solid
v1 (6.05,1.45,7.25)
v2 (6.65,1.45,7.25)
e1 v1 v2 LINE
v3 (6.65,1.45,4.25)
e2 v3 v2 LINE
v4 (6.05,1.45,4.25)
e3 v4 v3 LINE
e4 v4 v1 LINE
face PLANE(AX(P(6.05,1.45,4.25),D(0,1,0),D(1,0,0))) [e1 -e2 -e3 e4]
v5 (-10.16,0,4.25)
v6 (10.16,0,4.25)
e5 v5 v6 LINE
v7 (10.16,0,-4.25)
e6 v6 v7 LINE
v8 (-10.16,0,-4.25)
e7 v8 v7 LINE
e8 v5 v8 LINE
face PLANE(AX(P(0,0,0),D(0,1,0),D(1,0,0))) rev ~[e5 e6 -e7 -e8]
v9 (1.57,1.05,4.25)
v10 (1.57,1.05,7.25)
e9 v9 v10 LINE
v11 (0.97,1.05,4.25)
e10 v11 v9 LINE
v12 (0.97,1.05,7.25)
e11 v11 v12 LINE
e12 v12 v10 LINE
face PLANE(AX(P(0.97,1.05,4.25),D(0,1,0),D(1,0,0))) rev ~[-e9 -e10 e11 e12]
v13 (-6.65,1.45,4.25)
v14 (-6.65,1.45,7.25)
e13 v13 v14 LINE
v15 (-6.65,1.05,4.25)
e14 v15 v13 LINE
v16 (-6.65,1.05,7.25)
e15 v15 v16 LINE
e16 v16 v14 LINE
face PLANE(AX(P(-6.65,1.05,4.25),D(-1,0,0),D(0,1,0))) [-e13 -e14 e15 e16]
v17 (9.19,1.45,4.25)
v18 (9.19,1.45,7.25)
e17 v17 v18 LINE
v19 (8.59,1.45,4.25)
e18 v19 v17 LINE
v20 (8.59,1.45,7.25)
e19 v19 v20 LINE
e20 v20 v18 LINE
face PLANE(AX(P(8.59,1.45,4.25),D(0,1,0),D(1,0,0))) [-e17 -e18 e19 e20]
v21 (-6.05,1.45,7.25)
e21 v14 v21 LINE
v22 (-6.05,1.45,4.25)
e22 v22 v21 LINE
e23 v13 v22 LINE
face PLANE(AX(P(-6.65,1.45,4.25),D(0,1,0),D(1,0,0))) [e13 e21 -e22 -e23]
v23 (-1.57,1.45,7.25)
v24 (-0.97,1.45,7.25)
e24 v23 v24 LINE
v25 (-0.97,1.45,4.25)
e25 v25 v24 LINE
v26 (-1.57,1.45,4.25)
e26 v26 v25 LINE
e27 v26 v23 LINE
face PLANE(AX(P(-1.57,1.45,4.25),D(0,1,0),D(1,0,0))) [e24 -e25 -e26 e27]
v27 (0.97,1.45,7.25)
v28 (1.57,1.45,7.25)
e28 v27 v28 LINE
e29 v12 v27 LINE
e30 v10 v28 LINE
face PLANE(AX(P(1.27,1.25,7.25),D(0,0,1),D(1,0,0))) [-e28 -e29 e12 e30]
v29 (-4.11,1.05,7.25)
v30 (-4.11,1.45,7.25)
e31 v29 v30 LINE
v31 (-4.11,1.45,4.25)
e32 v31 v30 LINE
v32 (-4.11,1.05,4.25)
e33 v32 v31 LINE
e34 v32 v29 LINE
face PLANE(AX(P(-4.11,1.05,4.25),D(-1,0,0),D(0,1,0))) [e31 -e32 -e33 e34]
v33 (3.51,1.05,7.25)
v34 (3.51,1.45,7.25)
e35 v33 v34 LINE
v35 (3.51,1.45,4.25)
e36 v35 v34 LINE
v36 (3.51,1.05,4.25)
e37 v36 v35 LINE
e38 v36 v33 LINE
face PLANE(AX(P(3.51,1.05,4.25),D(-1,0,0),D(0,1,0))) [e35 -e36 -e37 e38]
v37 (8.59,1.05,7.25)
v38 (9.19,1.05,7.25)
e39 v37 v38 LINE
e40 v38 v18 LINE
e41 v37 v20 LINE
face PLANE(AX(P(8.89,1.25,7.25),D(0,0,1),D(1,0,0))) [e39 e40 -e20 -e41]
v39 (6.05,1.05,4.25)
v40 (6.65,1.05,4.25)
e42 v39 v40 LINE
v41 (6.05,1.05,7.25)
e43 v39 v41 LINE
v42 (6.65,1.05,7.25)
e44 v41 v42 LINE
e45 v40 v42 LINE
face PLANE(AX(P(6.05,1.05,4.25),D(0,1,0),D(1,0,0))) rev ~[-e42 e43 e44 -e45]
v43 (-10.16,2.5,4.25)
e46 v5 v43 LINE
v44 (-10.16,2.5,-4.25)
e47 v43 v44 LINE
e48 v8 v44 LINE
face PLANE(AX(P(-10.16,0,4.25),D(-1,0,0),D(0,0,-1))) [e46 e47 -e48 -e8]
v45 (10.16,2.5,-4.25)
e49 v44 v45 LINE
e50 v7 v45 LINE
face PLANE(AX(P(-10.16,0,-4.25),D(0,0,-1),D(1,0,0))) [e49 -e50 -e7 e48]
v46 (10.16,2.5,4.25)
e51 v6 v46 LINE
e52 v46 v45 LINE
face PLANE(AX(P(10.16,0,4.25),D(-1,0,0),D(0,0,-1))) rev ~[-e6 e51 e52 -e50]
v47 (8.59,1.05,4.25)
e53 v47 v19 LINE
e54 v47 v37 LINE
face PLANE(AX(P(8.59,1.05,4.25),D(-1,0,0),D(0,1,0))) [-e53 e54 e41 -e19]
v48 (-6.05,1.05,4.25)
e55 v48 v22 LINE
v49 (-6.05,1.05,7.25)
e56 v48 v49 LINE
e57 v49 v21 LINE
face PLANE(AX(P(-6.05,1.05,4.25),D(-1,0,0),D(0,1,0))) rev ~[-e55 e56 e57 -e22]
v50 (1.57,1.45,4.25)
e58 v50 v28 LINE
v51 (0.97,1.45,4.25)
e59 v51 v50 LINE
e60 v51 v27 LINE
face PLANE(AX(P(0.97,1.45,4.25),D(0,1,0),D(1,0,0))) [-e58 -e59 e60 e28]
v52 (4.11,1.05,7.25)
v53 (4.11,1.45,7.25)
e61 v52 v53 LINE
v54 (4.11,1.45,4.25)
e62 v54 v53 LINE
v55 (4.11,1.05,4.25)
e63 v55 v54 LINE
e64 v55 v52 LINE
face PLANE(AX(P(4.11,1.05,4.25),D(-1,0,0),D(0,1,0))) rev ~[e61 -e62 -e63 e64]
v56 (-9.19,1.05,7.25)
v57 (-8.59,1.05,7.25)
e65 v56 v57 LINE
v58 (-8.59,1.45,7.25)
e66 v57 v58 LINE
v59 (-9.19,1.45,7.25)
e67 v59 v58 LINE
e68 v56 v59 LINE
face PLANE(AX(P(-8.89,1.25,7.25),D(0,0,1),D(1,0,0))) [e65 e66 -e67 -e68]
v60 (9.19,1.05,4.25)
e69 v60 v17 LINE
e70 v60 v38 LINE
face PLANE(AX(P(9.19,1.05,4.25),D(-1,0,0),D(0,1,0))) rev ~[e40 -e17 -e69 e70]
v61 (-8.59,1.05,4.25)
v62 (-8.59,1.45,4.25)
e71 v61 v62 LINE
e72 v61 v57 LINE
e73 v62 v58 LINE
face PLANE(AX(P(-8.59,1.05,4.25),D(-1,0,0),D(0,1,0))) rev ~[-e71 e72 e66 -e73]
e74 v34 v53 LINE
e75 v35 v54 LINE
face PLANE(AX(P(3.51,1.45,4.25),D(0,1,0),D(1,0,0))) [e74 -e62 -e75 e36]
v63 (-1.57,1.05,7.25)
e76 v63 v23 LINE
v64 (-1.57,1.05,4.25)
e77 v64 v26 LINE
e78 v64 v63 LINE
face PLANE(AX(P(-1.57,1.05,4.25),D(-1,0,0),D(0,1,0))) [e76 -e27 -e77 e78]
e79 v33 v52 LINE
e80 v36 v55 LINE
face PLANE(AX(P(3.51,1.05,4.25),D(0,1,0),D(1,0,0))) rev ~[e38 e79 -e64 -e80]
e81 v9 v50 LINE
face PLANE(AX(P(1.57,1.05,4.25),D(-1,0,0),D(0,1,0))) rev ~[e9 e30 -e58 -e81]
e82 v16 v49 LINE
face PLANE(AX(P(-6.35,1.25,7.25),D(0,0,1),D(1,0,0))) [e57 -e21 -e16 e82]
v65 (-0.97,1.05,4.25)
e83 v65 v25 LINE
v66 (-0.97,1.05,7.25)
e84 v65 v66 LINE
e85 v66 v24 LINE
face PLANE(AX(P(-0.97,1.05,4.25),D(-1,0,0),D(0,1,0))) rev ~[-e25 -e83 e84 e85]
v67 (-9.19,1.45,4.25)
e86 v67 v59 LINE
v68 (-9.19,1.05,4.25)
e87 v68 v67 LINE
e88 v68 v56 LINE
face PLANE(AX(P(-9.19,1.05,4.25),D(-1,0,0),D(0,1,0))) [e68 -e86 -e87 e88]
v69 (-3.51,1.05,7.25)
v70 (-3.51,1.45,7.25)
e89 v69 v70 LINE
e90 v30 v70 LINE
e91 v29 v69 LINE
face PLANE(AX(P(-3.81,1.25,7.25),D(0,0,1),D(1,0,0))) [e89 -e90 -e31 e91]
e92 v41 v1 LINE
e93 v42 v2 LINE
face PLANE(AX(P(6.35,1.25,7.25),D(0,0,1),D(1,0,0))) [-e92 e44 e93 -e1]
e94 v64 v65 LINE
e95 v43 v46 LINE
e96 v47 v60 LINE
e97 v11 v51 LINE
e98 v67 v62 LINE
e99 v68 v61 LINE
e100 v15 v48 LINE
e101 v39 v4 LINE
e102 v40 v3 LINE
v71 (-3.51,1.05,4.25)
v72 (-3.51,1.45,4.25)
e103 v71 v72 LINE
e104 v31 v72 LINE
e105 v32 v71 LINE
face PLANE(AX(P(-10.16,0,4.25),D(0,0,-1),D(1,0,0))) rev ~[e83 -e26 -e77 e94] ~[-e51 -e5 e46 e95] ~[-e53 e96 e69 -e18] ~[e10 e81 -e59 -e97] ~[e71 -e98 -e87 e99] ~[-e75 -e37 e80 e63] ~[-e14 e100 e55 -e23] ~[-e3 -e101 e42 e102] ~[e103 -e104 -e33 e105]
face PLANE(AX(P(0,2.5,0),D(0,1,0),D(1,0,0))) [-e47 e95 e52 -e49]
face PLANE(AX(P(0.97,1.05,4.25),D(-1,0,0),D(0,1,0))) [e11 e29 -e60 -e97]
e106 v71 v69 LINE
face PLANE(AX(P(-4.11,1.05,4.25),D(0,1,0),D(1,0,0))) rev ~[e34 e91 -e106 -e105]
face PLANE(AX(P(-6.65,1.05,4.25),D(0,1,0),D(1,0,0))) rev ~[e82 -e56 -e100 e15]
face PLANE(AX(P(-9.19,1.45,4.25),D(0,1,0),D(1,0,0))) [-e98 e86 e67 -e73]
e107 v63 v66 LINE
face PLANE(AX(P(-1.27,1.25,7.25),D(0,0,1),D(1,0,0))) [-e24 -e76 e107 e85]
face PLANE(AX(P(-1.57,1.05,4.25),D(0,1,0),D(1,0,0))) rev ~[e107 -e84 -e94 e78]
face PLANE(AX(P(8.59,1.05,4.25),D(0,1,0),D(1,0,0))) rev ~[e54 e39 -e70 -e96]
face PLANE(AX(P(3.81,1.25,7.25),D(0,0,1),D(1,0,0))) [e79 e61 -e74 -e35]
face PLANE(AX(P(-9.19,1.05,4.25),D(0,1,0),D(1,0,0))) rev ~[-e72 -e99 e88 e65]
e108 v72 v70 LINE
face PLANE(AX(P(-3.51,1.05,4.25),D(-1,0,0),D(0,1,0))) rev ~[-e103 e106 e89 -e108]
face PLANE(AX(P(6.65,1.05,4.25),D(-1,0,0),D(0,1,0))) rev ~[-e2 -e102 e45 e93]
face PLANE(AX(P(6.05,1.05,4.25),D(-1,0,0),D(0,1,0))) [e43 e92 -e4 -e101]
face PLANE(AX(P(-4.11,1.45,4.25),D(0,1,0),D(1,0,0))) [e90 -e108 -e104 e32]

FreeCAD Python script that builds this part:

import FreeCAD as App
import Part
import Sketcher

V = App.Vector

doc = App.newDocument("Part")
body = doc.addObject("PartDesign::Body", "Body")

# Sketch on XZ plane
sketch1 = body.newObject("Sketcher::SketchObject", "Sketch")
sketch1.AttachmentSupport = (doc.getObject("XZ_Plane"), [""])
sketch1.MapMode = "FlatFace"
sketch1.addGeometry([
    Part.LineSegment(V(-10, -4, 0), V(-10, 4, 0)),
    Part.LineSegment(V(-10, 4, 0), V(10, 4, 0)),
    Part.LineSegment(V(10, 4, 0), V(10, -4, 0)),
    Part.LineSegment(V(10, -4, 0), V(-10, -4, 0)),
], False)
sketch1.addConstraint([
    Sketcher.Constraint("Coincident", 0, 2, 1, 1),
    Sketcher.Constraint("Coincident", 1, 2, 2, 1),
    Sketcher.Constraint("Coincident", 2, 2, 3, 1),
    Sketcher.Constraint("Coincident", 3, 2, 0, 1),
    Sketcher.Constraint("Vertical", 0),
    Sketcher.Constraint("Horizontal", 1),
    Sketcher.Constraint("Vertical", 2),
    Sketcher.Constraint("Horizontal", 3),
    Sketcher.Constraint("Symmetric", 0, 2, 2, 2, -1, 1),
    Sketcher.Constraint("DistanceY", 0, 1, 0, 2, 8.5),
    Sketcher.Constraint("DistanceX", 1, 1, 1, 2, 20.32),
])
pad1 = body.newObject("PartDesign::Pad", "Pad")
pad1.Profile = sketch1
pad1.Length = 2.5
pad1.Reversed = True

# Sketch on XY plane
sketch2 = body.newObject("Sketcher::SketchObject", "Sketch001")
sketch2.AttachmentSupport = (doc.getObject("XY_Plane"), [""])
sketch2.MapMode = "FlatFace"
sketch2.AttachmentOffset = App.Placement(V(0, 0, 4.25), App.Rotation())
sketch2.addGeometry([
    Part.LineSegment(V(-6.65, 1.45, 0), V(-6.65, 1.05, 0)),  # 0
    Part.LineSegment(V(-6.65, 1.05, 0), V(-6.05, 1.05, 0)),  # 1
    Part.LineSegment(V(-6.05, 1.05, 0), V(-6.05, 1.45, 0)),  # 2
    Part.LineSegment(V(-6.05, 1.45, 0), V(-6.65, 1.45, 0)),  # 3
    Part.LineSegment(V(-9.19, 1.45, 0), V(-9.19, 1.05, 0)),  # 4
    Part.LineSegment(V(-9.19, 1.05, 0), V(-8.59, 1.05, 0)),  # 5
    Part.LineSegment(V(-8.59, 1.05, 0), V(-8.59, 1.45, 0)),  # 6
    Part.LineSegment(V(-8.59, 1.45, 0), V(-9.19, 1.45, 0)),  # 7
    Part.LineSegment(V(-4.11, 1.45, 0), V(-4.11, 1.05, 0)),  # 8
    Part.LineSegment(V(-4.11, 1.05, 0), V(-3.51, 1.05, 0)),  # 9
    Part.LineSegment(V(-3.51, 1.05, 0), V(-3.51, 1.45, 0)),  # 10
    Part.LineSegment(V(-3.51, 1.45, 0), V(-4.11, 1.45, 0)),  # 11
    Part.LineSegment(V(-1.57, 1.45, 0), V(-1.57, 1.05, 0)),  # 12
    Part.LineSegment(V(-1.57, 1.05, 0), V(-0.97, 1.05, 0)),  # 13
    Part.LineSegment(V(-0.97, 1.05, 0), V(-0.97, 1.45, 0)),  # 14
    Part.LineSegment(V(-0.97, 1.45, 0), V(-1.57, 1.45, 0)),  # 15
    Part.LineSegment(V(0.97, 1.45, 0), V(0.97, 1.05, 0)),  # 16
    Part.LineSegment(V(0.97, 1.05, 0), V(1.57, 1.05, 0)),  # 17
    Part.LineSegment(V(1.57, 1.05, 0), V(1.57, 1.45, 0)),  # 18
    Part.LineSegment(V(1.57, 1.45, 0), V(0.97, 1.45, 0)),  # 19
    Part.LineSegment(V(3.51, 1.45, 0), V(3.51, 1.05, 0)),  # 20
    Part.LineSegment(V(3.51, 1.05, 0), V(4.11, 1.05, 0)),  # 21
    Part.LineSegment(V(4.11, 1.05, 0), V(4.11, 1.45, 0)),  # 22
    Part.LineSegment(V(4.11, 1.45, 0), V(3.51, 1.45, 0)),  # 23
    Part.LineSegment(V(6.05, 1.45, 0), V(6.05, 1.05, 0)),  # 24
    Part.LineSegment(V(6.05, 1.05, 0), V(6.65, 1.05, 0)),  # 25
    Part.LineSegment(V(6.65, 1.05, 0), V(6.65, 1.45, 0)),  # 26
    Part.LineSegment(V(6.65, 1.45, 0), V(6.05, 1.45, 0)),  # 27
    Part.LineSegment(V(8.59, 1.45, 0), V(8.59, 1.05, 0)),  # 28
    Part.LineSegment(V(8.59, 1.05, 0), V(9.19, 1.05, 0)),  # 29
    Part.LineSegment(V(9.19, 1.05, 0), V(9.19, 1.45, 0)),  # 30
    Part.LineSegment(V(9.19, 1.45, 0), V(8.59, 1.45, 0)),  # 31
], False)
sketch2.addConstraint([
    Sketcher.Constraint("Coincident", 0, 2, 1, 1),
    Sketcher.Constraint("Coincident", 1, 2, 2, 1),
    Sketcher.Constraint("Coincident", 2, 2, 3, 1),
    Sketcher.Constraint("Coincident", 3, 2, 0, 1),
    Sketcher.Constraint("Coincident", 4, 2, 5, 1),
    Sketcher.Constraint("Coincident", 5, 2, 6, 1),
    Sketcher.Constraint("Coincident", 6, 2, 7, 1),
    Sketcher.Constraint("Coincident", 7, 2, 4, 1),
    Sketcher.Constraint("Coincident", 8, 2, 9, 1),
    Sketcher.Constraint("Coincident", 9, 2, 10, 1),
    Sketcher.Constraint("Coincident", 10, 2, 11, 1),
    Sketcher.Constraint("Coincident", 11, 2, 8, 1),
    Sketcher.Constraint("Coincident", 12, 2, 13, 1),
    Sketcher.Constraint("Coincident", 13, 2, 14, 1),
    Sketcher.Constraint("Coincident", 14, 2, 15, 1),
    Sketcher.Constraint("Coincident", 15, 2, 12, 1),
    Sketcher.Constraint("Coincident", 16, 2, 17, 1),
    Sketcher.Constraint("Coincident", 17, 2, 18, 1),
    Sketcher.Constraint("Coincident", 18, 2, 19, 1),
    Sketcher.Constraint("Coincident", 19, 2, 16, 1),
    Sketcher.Constraint("Coincident", 20, 2, 21, 1),
    Sketcher.Constraint("Coincident", 21, 2, 22, 1),
    Sketcher.Constraint("Coincident", 22, 2, 23, 1),
    Sketcher.Constraint("Coincident", 23, 2, 20, 1),
    Sketcher.Constraint("Coincident", 24, 2, 25, 1),
    Sketcher.Constraint("Coincident", 25, 2, 26, 1),
    Sketcher.Constraint("Coincident", 26, 2, 27, 1),
    Sketcher.Constraint("Coincident", 27, 2, 24, 1),
    Sketcher.Constraint("Coincident", 28, 2, 29, 1),
    Sketcher.Constraint("Coincident", 29, 2, 30, 1),
    Sketcher.Constraint("Coincident", 30, 2, 31, 1),
    Sketcher.Constraint("Coincident", 31, 2, 28, 1),
    Sketcher.Constraint("Vertical", 0),
    Sketcher.Constraint("Horizontal", 1),
    Sketcher.Constraint("Vertical", 2),
    Sketcher.Constraint("Horizontal", 3),
    Sketcher.Constraint("Vertical", 4),
    Sketcher.Constraint("Horizontal", 5),
    Sketcher.Constraint("Vertical", 6),
    Sketcher.Constraint("Horizontal", 7),
    Sketcher.Constraint("Vertical", 8),
    Sketcher.Constraint("Horizontal", 9),
    Sketcher.Constraint("Vertical", 10),
    Sketcher.Constraint("Horizontal", 11),
    Sketcher.Constraint("Vertical", 12),
    Sketcher.Constraint("Horizontal", 13),
    Sketcher.Constraint("Vertical", 14),
    Sketcher.Constraint("Horizontal", 15),
    Sketcher.Constraint("Vertical", 16),
    Sketcher.Constraint("Horizontal", 17),
    Sketcher.Constraint("Vertical", 18),
    Sketcher.Constraint("Horizontal", 19),
    Sketcher.Constraint("Vertical", 20),
    Sketcher.Constraint("Horizontal", 21),
    Sketcher.Constraint("Vertical", 22),
    Sketcher.Constraint("Horizontal", 23),
    Sketcher.Constraint("Vertical", 24),
    Sketcher.Constraint("Horizontal", 25),
    Sketcher.Constraint("Vertical", 26),
    Sketcher.Constraint("Horizontal", 27),
    Sketcher.Constraint("Vertical", 28),
    Sketcher.Constraint("Horizontal", 29),
    Sketcher.Constraint("Vertical", 30),
    Sketcher.Constraint("Horizontal", 31),
    Sketcher.Constraint("Symmetric", 13, 2, 16, 2, -2),
    Sketcher.Constraint("Symmetric", 15, 2, 18, 2, -2),
    Sketcher.Constraint("Symmetric", 9, 2, 20, 2, -2),
    Sketcher.Constraint("Symmetric", 11, 2, 22, 2, -2),
    Sketcher.Constraint("Symmetric", 1, 2, 24, 2, -2),
    Sketcher.Constraint("Symmetric", 3, 2, 26, 2, -2),
    Sketcher.Constraint("Symmetric", 5, 2, 28, 2, -2),
    Sketcher.Constraint("Symmetric", 7, 2, 30, 2, -2),
    Sketcher.Constraint("Horizontal", 1, 2, 4, 2),
    Sketcher.Constraint("Horizontal", 3, 2, 6, 2),
    Sketcher.Constraint("Horizontal", 5, 2, 8, 2),
    Sketcher.Constraint("Horizontal", 7, 2, 10, 2),
    Sketcher.Constraint("Horizontal", 9, 2, 12, 2),
    Sketcher.Constraint("Horizontal", 11, 2, 14, 2),
    Sketcher.Constraint("Equal", 3, 5),
    Sketcher.Constraint("Equal", 7, 9),
    Sketcher.Constraint("Equal", 11, 13),
    Sketcher.Constraint("DistanceX", 1, 1, 1, 2, 0.6),
    Sketcher.Constraint("DistanceY", 0, 2, 0, 1, 0.4),
    Sketcher.Constraint("DistanceX", 0, 2, -1, 1, 6.65),
    Sketcher.Constraint("DistanceY", -1, 1, 0, 2, 1.05),
    Sketcher.Constraint("DistanceX", 4, 2, -1, 1, 9.19),
    Sketcher.Constraint("DistanceX", 8, 2, -1, 1, 4.11),
    Sketcher.Constraint("DistanceX", 12, 2, -1, 1, 1.57),
])
pad2 = body.newObject("PartDesign::Pad", "Pad001")
pad2.Profile = sketch2
pad2.Length = 3

doc.recompute()
